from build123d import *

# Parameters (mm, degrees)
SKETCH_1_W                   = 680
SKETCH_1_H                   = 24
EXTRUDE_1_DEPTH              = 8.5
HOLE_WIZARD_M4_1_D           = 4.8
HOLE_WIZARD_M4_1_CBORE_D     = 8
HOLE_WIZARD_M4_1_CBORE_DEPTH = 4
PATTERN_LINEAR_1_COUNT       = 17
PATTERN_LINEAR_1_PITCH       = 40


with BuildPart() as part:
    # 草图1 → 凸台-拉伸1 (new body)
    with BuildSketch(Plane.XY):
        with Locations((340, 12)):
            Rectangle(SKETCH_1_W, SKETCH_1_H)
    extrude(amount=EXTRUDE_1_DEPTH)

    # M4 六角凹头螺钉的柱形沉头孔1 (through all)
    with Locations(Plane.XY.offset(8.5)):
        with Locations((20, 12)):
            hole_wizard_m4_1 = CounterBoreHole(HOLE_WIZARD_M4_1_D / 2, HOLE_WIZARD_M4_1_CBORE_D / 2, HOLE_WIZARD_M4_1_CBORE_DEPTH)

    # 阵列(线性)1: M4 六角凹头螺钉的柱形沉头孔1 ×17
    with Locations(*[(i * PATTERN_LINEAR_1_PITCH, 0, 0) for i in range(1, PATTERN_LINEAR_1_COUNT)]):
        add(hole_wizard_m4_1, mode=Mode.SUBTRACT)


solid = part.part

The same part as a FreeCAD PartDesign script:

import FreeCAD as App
import Part
import Sketcher
from FreeCAD import Vector
Q = App.Units.Quantity

doc = App.newDocument("Part")
body = doc.addObject("PartDesign::Body", "Body")

# Sketch on XY plane
sketch1 = body.newObject("Sketcher::SketchObject", "Sketch")
sketch1.AttachmentSupport = (doc.getObject("XY_Plane"), [""])
sketch1.MapMode = "FlatFace"
sketch1.addGeometry([
    Part.LineSegment(Vector(0, 24, 0), Vector(0, 0, 0)),
    Part.LineSegment(Vector(0, 0, 0), Vector(680, 0, 0)),
    Part.LineSegment(Vector(680, 0, 0), Vector(680, 24, 0)),
    Part.LineSegment(Vector(680, 24, 0), Vector(0, 24, 0)),
], False)
sketch1.addConstraint([
    Sketcher.Constraint("Coincident", 0, 2, 1, 1),
    Sketcher.Constraint("Coincident", 1, 2, 2, 1),
    Sketcher.Constraint("Coincident", 2, 2, 3, 1),
    Sketcher.Constraint("Coincident", 3, 2, 0, 1),
    Sketcher.Constraint("Vertical", 0),
    Sketcher.Constraint("Horizontal", 1),
    Sketcher.Constraint("Vertical", 2),
    Sketcher.Constraint("Horizontal", 3),
    Sketcher.Constraint("Coincident", 0, 2, -1, 1),
    Sketcher.Constraint("DistanceX", 1, 1, 1, 2, Q("680 mm")),
    Sketcher.Constraint("DistanceY", 0, 2, 0, 1, Q("24 mm")),
])
pad1 = body.newObject("PartDesign::Pad", "Pad")
pad1.Profile = sketch1
pad1.Length = 8.5

# Sketch on XY plane
sketch2 = body.newObject("Sketcher::SketchObject", "Sketch001")
sketch2.AttachmentSupport = (doc.getObject("XY_Plane"), [""])
sketch2.MapMode = "FlatFace"
sketch2.AttachmentOffset = App.Placement(Vector(0, 0, 8.5), App.Rotation())
sketch2.addGeometry(Part.Circle(Vector(20, 12, 0), Vector(0, 0, 1), 2.4), False)
sketch2.addConstraint([
    Sketcher.Constraint("Diameter", 0, Q("4.8 mm")),
    Sketcher.Constraint("DistanceX", -1, 1, 0, 3, Q("20 mm")),
    Sketcher.Constraint("DistanceY", -1, 1, 0, 3, Q("12 mm")),
])
doc.recompute()
hole = body.newObject("PartDesign::Hole", "Hole")
hole.Profile = sketch2
hole.ThreadType = "None"
hole.Diameter = 4.8
hole.DepthType = "ThroughAll"
hole.HoleCutType = "Counterbore"
hole.HoleCutDiameter = 8
hole.HoleCutDepth = 4
doc.recompute()

linearpattern = body.newObject("PartDesign::LinearPattern", "LinearPattern")
linearpattern.Originals = [hole]
linearpattern.Direction = (doc.getObject("X_Axis"), [""])
linearpattern.Mode = "offset"
linearpattern.Offset = 40
linearpattern.Occurrences = 17
body.Tip = linearpattern

doc.recompute()
